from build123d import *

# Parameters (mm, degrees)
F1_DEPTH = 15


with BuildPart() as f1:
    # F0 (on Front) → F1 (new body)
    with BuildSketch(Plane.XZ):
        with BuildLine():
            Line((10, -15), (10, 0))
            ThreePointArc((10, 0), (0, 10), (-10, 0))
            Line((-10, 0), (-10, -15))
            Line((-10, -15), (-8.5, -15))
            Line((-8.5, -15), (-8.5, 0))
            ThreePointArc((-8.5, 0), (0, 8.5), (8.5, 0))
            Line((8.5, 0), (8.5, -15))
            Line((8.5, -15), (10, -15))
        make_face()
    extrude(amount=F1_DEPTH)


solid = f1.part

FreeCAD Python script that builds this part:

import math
import FreeCAD as App
import Part
import Sketcher

V = App.Vector

doc = App.newDocument("Part")
params = doc.addObject("Spreadsheet::Sheet", "Params")
for row, (alias, value) in enumerate([
    ("sketch1_radius", "10 mm"),
    ("sketch1_radius2", "8.5 mm"),
    ("sketch1_height", "15 mm"),
    ("pad1_length", "15 mm"),
], start=1):
    params.set(f"A{row}", alias)
    params.set(f"B{row}", "=" + value)
    params.setAlias(f"B{row}", alias)

body = doc.addObject("PartDesign::Body", "Body")

sketch1 = doc.addObject("Sketcher::SketchObject", "Sketch")
body.addObject(sketch1)
sketch1.AttachmentSupport = (doc.XZ_Plane, [""])
sketch1.MapMode = "FlatFace"
sketch1.addGeometry([
    Part.LineSegment(V(10, -15, 0), V(10, 0, 0)),
    Part.ArcOfCircle(Part.Circle(V(0, 0, 0), V(0, 0, 1), 10), math.radians(0), math.radians(180)),
    Part.LineSegment(V(-10, 0, 0), V(-10, -15, 0)),
    Part.LineSegment(V(-10, -15, 0), V(-8.5, -15, 0)),
    Part.LineSegment(V(-8.5, -15, 0), V(-8.5, 0, 0)),
    Part.ArcOfCircle(Part.Circle(V(0, 0, 0), V(0, 0, 1), 8.5), math.radians(0), math.radians(180)),
    Part.LineSegment(V(8.5, 0, 0), V(8.5, -15, 0)),
    Part.LineSegment(V(8.5, -15, 0), V(10, -15, 0)),
], False)
sketch1.addConstraint([
    Sketcher.Constraint("Tangent", 0, 2, 1, 1),
    Sketcher.Constraint("Tangent", 1, 2, 2, 1),
    Sketcher.Constraint("Coincident", 2, 2, 3, 1),
    Sketcher.Constraint("Coincident", 3, 2, 4, 1),
    Sketcher.Constraint("Tangent", 4, 2, 5, 2),
    Sketcher.Constraint("Tangent", 5, 1, 6, 1),
    Sketcher.Constraint("Coincident", 6, 2, 7, 1),
    Sketcher.Constraint("Coincident", 7, 2, 0, 1),
    Sketcher.Constraint("Vertical", 0),
    Sketcher.Constraint("Vertical", 2),
    Sketcher.Constraint("Horizontal", 3),
    Sketcher.Constraint("Vertical", 4),
    Sketcher.Constraint("Vertical", 6),
    Sketcher.Constraint("Horizontal", 7),
    Sketcher.Constraint("Coincident", 1, 3, -1, 1),
    Sketcher.Constraint("Coincident", 5, 3, -1, 1),
    Sketcher.Constraint("Horizontal", 3, 2, 6, 2),
    Sketcher.Constraint("Radius", 1, 10.0),
    Sketcher.Constraint("Radius", 5, 8.5),
    Sketcher.Constraint("DistanceY", 0, 1, 0, 2, 15.0),
])
sketch1.setExpression("Constraints[17]", "Params.sketch1_radius")
sketch1.setExpression("Constraints[18]", "Params.sketch1_radius2")
sketch1.setExpression("Constraints[19]", "Params.sketch1_height")
pad1 = doc.addObject("PartDesign::Pad", "Pad")
body.addObject(pad1)
pad1.Profile = sketch1
pad1.setExpression("Length", "Params.pad1_length")

doc.recompute()
